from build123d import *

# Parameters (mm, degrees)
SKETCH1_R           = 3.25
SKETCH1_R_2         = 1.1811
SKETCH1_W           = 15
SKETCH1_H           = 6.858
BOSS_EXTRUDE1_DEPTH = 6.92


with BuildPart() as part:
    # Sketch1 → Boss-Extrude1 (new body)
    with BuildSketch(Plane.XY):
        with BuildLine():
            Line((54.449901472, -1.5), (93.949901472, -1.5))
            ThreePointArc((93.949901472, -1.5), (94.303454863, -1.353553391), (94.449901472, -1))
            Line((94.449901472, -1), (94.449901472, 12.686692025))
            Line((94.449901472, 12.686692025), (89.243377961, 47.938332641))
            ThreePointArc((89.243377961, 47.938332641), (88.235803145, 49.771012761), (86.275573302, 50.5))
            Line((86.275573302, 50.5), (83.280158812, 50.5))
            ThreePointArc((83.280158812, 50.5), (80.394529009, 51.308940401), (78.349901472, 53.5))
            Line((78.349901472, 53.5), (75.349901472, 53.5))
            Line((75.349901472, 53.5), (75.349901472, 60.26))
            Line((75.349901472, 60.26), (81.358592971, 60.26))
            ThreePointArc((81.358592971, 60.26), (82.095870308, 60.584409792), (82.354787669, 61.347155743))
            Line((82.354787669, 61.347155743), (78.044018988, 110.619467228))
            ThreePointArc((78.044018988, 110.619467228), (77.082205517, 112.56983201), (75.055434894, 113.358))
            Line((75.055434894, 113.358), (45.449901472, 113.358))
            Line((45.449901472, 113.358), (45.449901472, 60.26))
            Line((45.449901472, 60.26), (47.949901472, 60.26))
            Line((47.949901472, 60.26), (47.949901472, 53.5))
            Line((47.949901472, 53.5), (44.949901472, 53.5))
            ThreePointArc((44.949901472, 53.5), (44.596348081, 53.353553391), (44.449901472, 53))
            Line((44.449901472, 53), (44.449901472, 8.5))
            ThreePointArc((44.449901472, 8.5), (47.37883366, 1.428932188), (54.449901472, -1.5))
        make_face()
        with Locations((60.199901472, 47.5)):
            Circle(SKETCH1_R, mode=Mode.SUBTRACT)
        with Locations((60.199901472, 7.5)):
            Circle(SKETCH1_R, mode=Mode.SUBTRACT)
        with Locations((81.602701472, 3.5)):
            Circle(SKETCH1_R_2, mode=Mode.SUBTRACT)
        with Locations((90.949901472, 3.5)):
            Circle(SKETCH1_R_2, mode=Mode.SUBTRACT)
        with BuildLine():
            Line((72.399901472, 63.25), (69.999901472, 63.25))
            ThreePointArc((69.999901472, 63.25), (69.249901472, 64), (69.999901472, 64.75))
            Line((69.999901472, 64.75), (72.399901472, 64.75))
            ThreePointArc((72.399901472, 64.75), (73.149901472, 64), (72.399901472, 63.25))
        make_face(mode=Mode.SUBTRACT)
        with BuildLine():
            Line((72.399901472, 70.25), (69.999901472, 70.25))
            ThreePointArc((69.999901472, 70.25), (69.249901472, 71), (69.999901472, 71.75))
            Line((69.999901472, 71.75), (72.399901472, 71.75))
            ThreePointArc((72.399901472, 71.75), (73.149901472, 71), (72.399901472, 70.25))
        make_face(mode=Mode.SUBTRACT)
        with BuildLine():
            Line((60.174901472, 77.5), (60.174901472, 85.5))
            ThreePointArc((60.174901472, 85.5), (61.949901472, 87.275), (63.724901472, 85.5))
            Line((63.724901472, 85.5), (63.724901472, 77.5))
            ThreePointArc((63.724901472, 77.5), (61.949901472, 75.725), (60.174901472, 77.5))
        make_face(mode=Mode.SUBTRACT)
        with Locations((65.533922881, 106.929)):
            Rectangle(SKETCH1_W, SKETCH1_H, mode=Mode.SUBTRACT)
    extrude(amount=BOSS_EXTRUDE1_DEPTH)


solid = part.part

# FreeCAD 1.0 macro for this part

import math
import FreeCAD as App
import Part
import Sketcher
Q = App.Units.Quantity

doc = App.newDocument("Part")
body = doc.addObject("PartDesign::Body", "Body")

sketch1 = body.newObject("Sketcher::SketchObject", "Sketch")
sketch1.AttachmentSupport = (doc.getObject("XY_Plane"), [""])
sketch1.MapMode = "FlatFace"
sketch1.addGeometry([
    Part.LineSegment(App.Vector(54.45, -1.5, 0), App.Vector(93.95, -1.5, 0)),
    Part.ArcOfCircle(Part.Circle(App.Vector(93.95, -1, 0), App.Vector(0, 0, 1), 0.5), math.radians(-90), math.radians(0)),
    Part.LineSegment(App.Vector(94.45, -1, 0), App.Vector(94.45, 12.69, 0)),
    Part.LineSegment(App.Vector(94.45, 12.69, 0), App.Vector(89.24, 47.94, 0)),
    Part.ArcOfCircle(Part.Circle(App.Vector(86.28, 47.5, 0), App.Vector(0, 0, 1), 3), math.radians(8), math.radians(90)),
    Part.LineSegment(App.Vector(86.28, 50.5, 0), App.Vector(83.28, 50.5, 0)),
    Part.ArcOfCircle(Part.Circle(App.Vector(83.28, 56.05, 0), App.Vector(0, 0, 1), 5.55), math.radians(-153), math.radians(-90)),
    Part.LineSegment(App.Vector(78.35, 53.5, 0), App.Vector(75.35, 53.5, 0)),
    Part.LineSegment(App.Vector(75.35, 53.5, 0), App.Vector(75.35, 60.26, 0)),
    Part.LineSegment(App.Vector(75.35, 60.26, 0), App.Vector(81.36, 60.26, 0)),
    Part.ArcOfCircle(Part.Circle(App.Vector(81.36, 61.26, 0), App.Vector(0, 0, 1), 1), math.radians(-90), math.radians(5)),
    Part.LineSegment(App.Vector(82.35, 61.35, 0), App.Vector(78.04, 110.62, 0)),
    Part.ArcOfCircle(Part.Circle(App.Vector(75.06, 110.36, 0), App.Vector(0, 0, 1), 3), math.radians(5), math.radians(90)),
    Part.LineSegment(App.Vector(75.06, 113.36, 0), App.Vector(45.45, 113.36, 0)),
    Part.LineSegment(App.Vector(45.45, 113.36, 0), App.Vector(45.45, 60.26, 0)),
    Part.LineSegment(App.Vector(45.45, 60.26, 0), App.Vector(47.95, 60.26, 0)),
    Part.LineSegment(App.Vector(47.95, 60.26, 0), App.Vector(47.95, 53.5, 0)),
    Part.LineSegment(App.Vector(47.95, 53.5, 0), App.Vector(44.95, 53.5, 0)),
    Part.ArcOfCircle(Part.Circle(App.Vector(44.95, 53, 0), App.Vector(0, 0, 1), 0.5), math.radians(90), math.radians(180)),
    Part.LineSegment(App.Vector(44.45, 53, 0), App.Vector(44.45, 8.5, 0)),
    Part.ArcOfCircle(Part.Circle(App.Vector(54.45, 8.5, 0), App.Vector(0, 0, 1), 10), math.radians(180), math.radians(270)),
    Part.Circle(App.Vector(60.2, 7.5, 0), App.Vector(0, 0, 1), 3.25),
    Part.Circle(App.Vector(60.2, 47.5, 0), App.Vector(0, 0, 1), 3.25),
    Part.Circle(App.Vector(81.6, 3.5, 0), App.Vector(0, 0, 1), 1.18),
    Part.Circle(App.Vector(90.95, 3.5, 0), App.Vector(0, 0, 1), 1.18),
    Part.ArcOfCircle(Part.Circle(App.Vector(61.95, 77.5, 0), App.Vector(0, 0, 1), 1.77), math.radians(180), math.radians(360)),
    Part.LineSegment(App.Vector(60.17, 77.5, 0), App.Vector(60.17, 85.5, 0)),
    Part.ArcOfCircle(Part.Circle(App.Vector(61.95, 85.5, 0), App.Vector(0, 0, 1), 1.77), math.radians(0), math.radians(180)),
    Part.LineSegment(App.Vector(63.72, 85.5, 0), App.Vector(63.72, 77.5, 0)),
    Part.ArcOfCircle(Part.Circle(App.Vector(72.4, 64, 0), App.Vector(0, 0, 1), 0.75), math.radians(-90), math.radians(90)),
    Part.LineSegment(App.Vector(72.4, 63.25, 0), App.Vector(70, 63.25, 0)),
    Part.ArcOfCircle(Part.Circle(App.Vector(70, 64, 0), App.Vector(0, 0, 1), 0.75), math.radians(90), math.radians(270)),
    Part.LineSegment(App.Vector(70, 64.75, 0), App.Vector(72.4, 64.75, 0)),
    Part.ArcOfCircle(Part.Circle(App.Vector(72.4, 71, 0), App.Vector(0, 0, 1), 0.75), math.radians(-90), math.radians(90)),
    Part.LineSegment(App.Vector(72.4, 70.25, 0), App.Vector(70, 70.25, 0)),
    Part.ArcOfCircle(Part.Circle(App.Vector(70, 71, 0), App.Vector(0, 0, 1), 0.75), math.radians(90), math.radians(270)),
    Part.LineSegment(App.Vector(70, 71.75, 0), App.Vector(72.4, 71.75, 0)),
    Part.LineSegment(App.Vector(73.03, 103.5, 0), App.Vector(58.03, 103.5, 0)),
    Part.LineSegment(App.Vector(58.03, 103.5, 0), App.Vector(58.03, 110.36, 0)),
    Part.LineSegment(App.Vector(58.03, 110.36, 0), App.Vector(73.03, 110.36, 0)),
    Part.LineSegment(App.Vector(73.03, 110.36, 0), App.Vector(73.03, 103.5, 0)),
], False)
sketch1.addConstraint([
    Sketcher.Constraint("Tangent", 0, 2, 1, 1),
    Sketcher.Constraint("Tangent", 1, 2, 2, 1),
    Sketcher.Constraint("Coincident", 2, 2, 3, 1),
    Sketcher.Constraint("Tangent", 3, 2, 4, 1),
    Sketcher.Constraint("Tangent", 4, 2, 5, 1),
    Sketcher.Constraint("Tangent", 5, 2, 6, 2),
    Sketcher.Constraint("Coincident", 6, 1, 7, 1),
    Sketcher.Constraint("Coincident", 7, 2, 8, 1),
    Sketcher.Constraint("Coincident", 8, 2, 9, 1),
    Sketcher.Constraint("Tangent", 9, 2, 10, 1),
    Sketcher.Constraint("Tangent", 10, 2, 11, 1),
    Sketcher.Constraint("Tangent", 11, 2, 12, 1),
    Sketcher.Constraint("Tangent", 12, 2, 13, 1),
    Sketcher.Constraint("Coincident", 13, 2, 14, 1),
    Sketcher.Constraint("Coincident", 14, 2, 15, 1),
    Sketcher.Constraint("Coincident", 15, 2, 16, 1),
    Sketcher.Constraint("Coincident", 16, 2, 17, 1),
    Sketcher.Constraint("Tangent", 17, 2, 18, 1),
    Sketcher.Constraint("Tangent", 18, 2, 19, 1),
    Sketcher.Constraint("Tangent", 19, 2, 20, 1),
    Sketcher.Constraint("Tangent", 20, 2, 0, 1),
    Sketcher.Constraint("Tangent", 25, 1, 26, 1),
    Sketcher.Constraint("Tangent", 26, 2, 27, 2),
    Sketcher.Constraint("Tangent", 27, 1, 28, 1),
    Sketcher.Constraint("Tangent", 28, 2, 25, 2),
    Sketcher.Constraint("Tangent", 29, 1, 30, 1),
    Sketcher.Constraint("Tangent", 30, 2, 31, 2),
    Sketcher.Constraint("Tangent", 31, 1, 32, 1),
    Sketcher.Constraint("Tangent", 32, 2, 29, 2),
    Sketcher.Constraint("Tangent", 33, 1, 34, 1),
    Sketcher.Constraint("Tangent", 34, 2, 35, 2),
    Sketcher.Constraint("Tangent", 35, 1, 36, 1),
    Sketcher.Constraint("Tangent", 36, 2, 33, 2),
    Sketcher.Constraint("Coincident", 37, 2, 38, 1),
    Sketcher.Constraint("Coincident", 38, 2, 39, 1),
    Sketcher.Constraint("Coincident", 39, 2, 40, 1),
    Sketcher.Constraint("Coincident", 40, 2, 37, 1),
    Sketcher.Constraint("Horizontal", 0),
    Sketcher.Constraint("Vertical", 2),
    Sketcher.Constraint("Horizontal", 5),
    Sketcher.Constraint("Horizontal", 7),
    Sketcher.Constraint("Vertical", 8),
    Sketcher.Constraint("Horizontal", 9),
    Sketcher.Constraint("Horizontal", 13),
    Sketcher.Constraint("Vertical", 14),
    Sketcher.Constraint("Horizontal", 15),
    Sketcher.Constraint("Vertical", 16),
    Sketcher.Constraint("Horizontal", 17),
    Sketcher.Constraint("Vertical", 19),
    Sketcher.Constraint("Vertical", 26),
    Sketcher.Constraint("Vertical", 28),
    Sketcher.Constraint("Horizontal", 30),
    Sketcher.Constraint("Horizontal", 32),
    Sketcher.Constraint("Horizontal", 34),
    Sketcher.Constraint("Horizontal", 36),
    Sketcher.Constraint("Horizontal", 37),
    Sketcher.Constraint("Vertical", 38),
    Sketcher.Constraint("Horizontal", 39),
    Sketcher.Constraint("Vertical", 40),
    Sketcher.Constraint("Equal", 4, 12),
    Sketcher.Constraint("Equal", 1, 18),
    Sketcher.Constraint("Equal", 21, 22),
    Sketcher.Constraint("Equal", 23, 24),
    Sketcher.Constraint("Equal", 31, 33),
    Sketcher.Constraint("Horizontal", 4, 3, 22, 3),
    Sketcher.Constraint("Horizontal", 23, 3, 24, 3),
    Sketcher.Constraint("Horizontal", 9, 2, 14, 2),
    Sketcher.Constraint("Horizontal", 7, 2, 16, 2),
    Sketcher.Constraint("Horizontal", 12, 3, 38, 2),
    Sketcher.Constraint("Vertical", 21, 3, 22, 3),
    Sketcher.Constraint("Vertical", 29, 3, 33, 3),
    Sketcher.Constraint("Vertical", 31, 3, 35, 3),
    Sketcher.Constraint("Equal", 7, 17),
    Sketcher.Constraint("Radius", 4, 3.0),
    Sketcher.Constraint("Radius", 10, 1.0),
    Sketcher.Constraint("Radius", 20, 10.0),
    Sketcher.Constraint("Diameter", 21, 6.5),
    Sketcher.Constraint("Radius", 1, 0.5),
    Sketcher.Constraint("DistanceX", 7, 2, 7, 1, 3.0),
    Sketcher.Constraint("DistanceX", 37, 2, 37, 1, 15.0),
    Sketcher.Constraint("DistanceY", 26, 1, 26, 2, 8.0),
    Sketcher.Constraint("Angle", 11, Q("95 deg")),
    Sketcher.Constraint("Radius", 29, 0.75),
    Sketcher.Constraint("DistanceX", 0, 1, 0, 2, 39.5),
    Sketcher.Constraint("DistanceX", 15, 1, 15, 2, 2.5),
    Sketcher.Constraint("DistanceX", 30, 2, 30, 1, 2.4),
    Sketcher.Constraint("DistanceY", 19, 2, 19, 1, 44.5),
    Sketcher.Constraint("DistanceY", 1, 3, -1, 1, 1.0),
    Sketcher.Constraint("DistanceY", -1, 1, 29, 3, 64.0),
    Sketcher.Constraint("DistanceY", -1, 1, 33, 3, 71.0),
    Sketcher.Constraint("Radius", 25, 1.775),
    Sketcher.Constraint("DistanceY", 20, 3, 4, 3, 39.0),
    Sketcher.Constraint("DistanceY", 21, 3, 20, 3, 1.0),
    Sketcher.Constraint("DistanceY", 23, 3, 21, 3, 4.0),
    Sketcher.Constraint("DistanceX", 24, 3, 1, 3, 3.0),
    Sketcher.Constraint("DistanceX", 18, 3, 25, 3, 17.0),
    Sketcher.Constraint("DistanceY", 22, 3, 25, 3, 30.0),
    Sketcher.Constraint("DistanceY", 26, 2, 37, 2, 18.0),
    Sketcher.Constraint("Diameter", 23, 2.3622),
    Sketcher.Constraint("DistanceY", 8, 1, 8, 2, 6.76),
    Sketcher.Constraint("DistanceX", 22, 3, 29, 3, 12.2),
    Sketcher.Constraint("DistanceY", 14, 2, 14, 1, 53.098),
    Sketcher.Constraint("Radius", 6, 5.55124),
    Sketcher.Constraint("DistanceX", 20, 3, 21, 3, 5.75),
    Sketcher.Constraint("DistanceX", 29, 3, 7, 2, 2.95),
    Sketcher.Constraint("DistanceX", 9, 1, 9, 2, 6.008691),
    Sketcher.Constraint("DistanceX", -1, 1, 1, 3, 93.949901),
    Sketcher.Constraint("DistanceX", -1, 1, 23, 3, 81.602701),
    Sketcher.Constraint("DistanceX", 5, 2, 5, 1, 2.995414),
    Sketcher.Constraint("DistanceY", 2, 1, 2, 2, 13.686692),
    Sketcher.Constraint("DistanceX", 13, 2, 37, 2, 12.584021),
])
pad1 = body.newObject("PartDesign::Pad", "Pad")
pad1.Profile = sketch1
pad1.Length = 6.92

doc.recompute()
